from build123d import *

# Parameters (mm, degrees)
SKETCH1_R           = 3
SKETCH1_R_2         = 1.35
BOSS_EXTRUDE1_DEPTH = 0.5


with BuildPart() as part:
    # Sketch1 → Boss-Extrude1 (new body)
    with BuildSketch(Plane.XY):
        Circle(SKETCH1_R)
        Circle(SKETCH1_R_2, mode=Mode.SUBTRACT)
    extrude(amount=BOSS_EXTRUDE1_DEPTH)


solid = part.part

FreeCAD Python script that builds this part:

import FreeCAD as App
import Part
import Sketcher
from FreeCAD import Vector
Q = App.Units.Quantity

doc = App.newDocument("Part")
body = doc.addObject("PartDesign::Body", "Body")

# Sketch on XY plane
sketch1 = body.newObject("Sketcher::SketchObject", "Sketch")
sketch1.AttachmentSupport = (doc.getObject("XY_Plane"), [""])
sketch1.MapMode = "FlatFace"
sketch1.addGeometry([
    Part.Circle(Vector(0, 0, 0), Vector(0, 0, 1), 3),
    Part.Circle(Vector(0, 0, 0), Vector(0, 0, 1), 1.4),
], False)
sketch1.addConstraint([
    Sketcher.Constraint("Coincident", 0, 3, -1, 1),
    Sketcher.Constraint("Coincident", 1, 3, -1, 1),
    Sketcher.Constraint("Diameter", 0, Q("6 mm")),
    Sketcher.Constraint("Diameter", 1, Q("2.7 mm")),
])
pad1 = body.newObject("PartDesign::Pad", "Pad")
pad1.Profile = sketch1
pad1.Length = 0.5

doc.recompute()
